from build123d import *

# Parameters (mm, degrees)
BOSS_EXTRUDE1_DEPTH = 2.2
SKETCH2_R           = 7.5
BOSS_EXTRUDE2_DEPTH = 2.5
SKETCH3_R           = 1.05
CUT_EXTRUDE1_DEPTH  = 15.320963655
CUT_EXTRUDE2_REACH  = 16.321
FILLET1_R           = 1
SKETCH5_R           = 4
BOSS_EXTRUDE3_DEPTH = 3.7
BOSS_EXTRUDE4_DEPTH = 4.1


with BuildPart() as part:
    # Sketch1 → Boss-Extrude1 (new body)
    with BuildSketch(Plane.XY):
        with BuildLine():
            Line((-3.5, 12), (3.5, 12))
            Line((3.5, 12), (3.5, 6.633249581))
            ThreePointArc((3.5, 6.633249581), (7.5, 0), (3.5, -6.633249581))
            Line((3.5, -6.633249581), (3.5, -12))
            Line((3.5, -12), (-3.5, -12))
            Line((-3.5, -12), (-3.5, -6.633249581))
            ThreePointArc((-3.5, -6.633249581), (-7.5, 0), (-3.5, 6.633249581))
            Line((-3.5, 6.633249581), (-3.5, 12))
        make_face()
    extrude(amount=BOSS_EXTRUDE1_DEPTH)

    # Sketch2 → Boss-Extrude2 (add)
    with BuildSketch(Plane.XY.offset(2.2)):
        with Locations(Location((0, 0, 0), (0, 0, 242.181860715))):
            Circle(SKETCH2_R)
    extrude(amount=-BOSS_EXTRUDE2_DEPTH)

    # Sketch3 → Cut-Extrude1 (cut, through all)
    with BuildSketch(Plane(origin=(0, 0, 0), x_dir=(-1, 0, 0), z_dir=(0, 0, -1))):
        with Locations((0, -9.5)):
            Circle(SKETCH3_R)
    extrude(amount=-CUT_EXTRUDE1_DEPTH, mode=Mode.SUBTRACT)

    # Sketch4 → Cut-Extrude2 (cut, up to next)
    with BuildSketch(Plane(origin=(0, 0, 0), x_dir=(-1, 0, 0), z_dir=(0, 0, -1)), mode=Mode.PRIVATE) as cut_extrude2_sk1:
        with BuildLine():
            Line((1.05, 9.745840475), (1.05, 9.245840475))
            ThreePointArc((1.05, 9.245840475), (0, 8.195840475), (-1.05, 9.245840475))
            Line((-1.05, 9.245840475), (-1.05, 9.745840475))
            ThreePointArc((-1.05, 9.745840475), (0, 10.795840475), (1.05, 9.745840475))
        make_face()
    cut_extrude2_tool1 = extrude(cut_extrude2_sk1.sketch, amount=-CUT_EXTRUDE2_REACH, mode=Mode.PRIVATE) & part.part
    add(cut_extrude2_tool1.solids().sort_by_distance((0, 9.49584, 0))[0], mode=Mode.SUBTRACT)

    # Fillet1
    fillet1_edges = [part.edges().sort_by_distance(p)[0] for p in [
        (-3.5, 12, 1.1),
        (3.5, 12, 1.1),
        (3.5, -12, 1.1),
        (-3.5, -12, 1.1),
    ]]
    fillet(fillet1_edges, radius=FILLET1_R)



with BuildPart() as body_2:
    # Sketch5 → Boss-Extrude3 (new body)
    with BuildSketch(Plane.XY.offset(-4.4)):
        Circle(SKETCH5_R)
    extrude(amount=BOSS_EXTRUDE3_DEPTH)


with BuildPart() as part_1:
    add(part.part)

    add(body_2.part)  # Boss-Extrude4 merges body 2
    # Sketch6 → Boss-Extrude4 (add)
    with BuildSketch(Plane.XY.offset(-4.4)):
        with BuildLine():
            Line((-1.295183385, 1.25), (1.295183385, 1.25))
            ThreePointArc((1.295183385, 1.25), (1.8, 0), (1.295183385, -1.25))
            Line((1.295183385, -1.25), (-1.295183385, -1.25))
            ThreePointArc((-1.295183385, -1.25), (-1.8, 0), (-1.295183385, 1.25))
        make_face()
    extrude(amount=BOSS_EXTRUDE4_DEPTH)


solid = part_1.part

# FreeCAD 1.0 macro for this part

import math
import FreeCAD as App
import Part
import Sketcher
from FreeCAD import Vector
Q = App.Units.Quantity


def edges_at(feature, points):
    """Names of the edges that pass closest to the given points."""
    edges = feature.Shape.Edges
    near = lambda p: min(range(len(edges)), key=lambda i: edges[i].distToShape(Part.Vertex(*p))[0])
    return sorted({f"Edge{near(p) + 1}" for p in points})

doc = App.newDocument("Part")
body = doc.addObject("PartDesign::Body", "Body")

# Sketch on XY plane
sketch1 = body.newObject("Sketcher::SketchObject", "Sketch")
sketch1.AttachmentSupport = (doc.getObject("XY_Plane"), [""])
sketch1.MapMode = "FlatFace"
sketch1.addGeometry(Part.LineSegment(Vector(4, 12, 0), Vector(-4, 12, 0)), False)
sketch1.addGeometry(Part.LineSegment(Vector(-4, 12, 0), Vector(-4, 7, 0)), False)
sketch1.addGeometry(Part.ArcOfCircle(Part.Circle(Vector(0, 0, 0), Vector(0, 0, 1), 8), math.radians(118), math.radians(242)), False)
sketch1.addGeometry(Part.LineSegment(Vector(-4, -7, 0), Vector(-4, -12, 0)), False)
sketch1.addGeometry(Part.LineSegment(Vector(-4, -12, 0), Vector(4, -12, 0)), False)
sketch1.addGeometry(Part.LineSegment(Vector(4, -12, 0), Vector(4, -7, 0)), False)
sketch1.addGeometry(Part.ArcOfCircle(Part.Circle(Vector(0, 0, 0), Vector(0, 0, 1), 8), math.radians(-62), math.radians(62)), False)
sketch1.addGeometry(Part.LineSegment(Vector(4, 7, 0), Vector(4, 12, 0)), False)
sketch1.addConstraint(Sketcher.Constraint("Coincident", 0, 2, 1, 1))
sketch1.addConstraint(Sketcher.Constraint("Coincident", 1, 2, 2, 1))
sketch1.addConstraint(Sketcher.Constraint("Coincident", 2, 2, 3, 1))
sketch1.addConstraint(Sketcher.Constraint("Coincident", 3, 2, 4, 1))
sketch1.addConstraint(Sketcher.Constraint("Coincident", 4, 2, 5, 1))
sketch1.addConstraint(Sketcher.Constraint("Coincident", 5, 2, 6, 1))
sketch1.addConstraint(Sketcher.Constraint("Coincident", 6, 2, 7, 1))
sketch1.addConstraint(Sketcher.Constraint("Coincident", 7, 2, 0, 1))
sketch1.addConstraint(Sketcher.Constraint("Horizontal", 0))
sketch1.addConstraint(Sketcher.Constraint("Vertical", 1))
sketch1.addConstraint(Sketcher.Constraint("Vertical", 3))
sketch1.addConstraint(Sketcher.Constraint("Horizontal", 4))
sketch1.addConstraint(Sketcher.Constraint("Vertical", 5))
sketch1.addConstraint(Sketcher.Constraint("Vertical", 7))
sketch1.addConstraint(Sketcher.Constraint("Coincident", 2, 3, -1, 1))
sketch1.addConstraint(Sketcher.Constraint("Coincident", 6, 3, -1, 1))
sketch1.addConstraint(Sketcher.Constraint("Equal", 2, 6))
sketch1.addConstraint(Sketcher.Constraint("Symmetric", 0, 2, 4, 2, -1, 1))
sketch1.addConstraint(Sketcher.Constraint("Horizontal", 2, 2, 5, 2))
sketch1.addConstraint(Sketcher.Constraint("Horizontal", 1, 2, 6, 2))
sketch1.addConstraint(Sketcher.Constraint("Radius", 2, Q("7.5 mm")))
sketch1.addConstraint(Sketcher.Constraint("DistanceX", 0, 2, 0, 1, Q("7 mm")))
sketch1.addConstraint(Sketcher.Constraint("DistanceY", -1, 1, 0, 2, Q("12 mm")))
pad1 = body.newObject("PartDesign::Pad", "Pad")
pad1.Profile = sketch1
pad1.Length = 2.2

# Sketch on XY plane
sketch2 = body.newObject("Sketcher::SketchObject", "Sketch001")
sketch2.AttachmentSupport = (doc.getObject("XY_Plane"), [""])
sketch2.MapMode = "FlatFace"
sketch2.AttachmentOffset = App.Placement(Vector(0, 0, 2.2), App.Rotation())
sketch2.addGeometry(Part.Circle(Vector(0, 0, 0), Vector(0, 0, 1), 8), False)
sketch2.addConstraint(Sketcher.Constraint("Coincident", 0, 3, -1, 1))
sketch2.addConstraint(Sketcher.Constraint("Diameter", 0, Q("15 mm")))
pad2 = body.newObject("PartDesign::Pad", "Pad001")
pad2.Profile = sketch2
pad2.Length = 2.5
pad2.Reversed = True

# Sketch on XY plane
sketch3 = body.newObject("Sketcher::SketchObject", "Sketch002")
sketch3.AttachmentSupport = (doc.getObject("XY_Plane"), [""])
sketch3.MapMode = "FlatFace"
sketch3.addGeometry(Part.Circle(Vector(0, -9.5, 0), Vector(0, 0, 1), 1.1), False)
sketch3.addConstraint(Sketcher.Constraint("PointOnObject", 0, 3, -2))
sketch3.addConstraint(Sketcher.Constraint("Diameter", 0, Q("2.1 mm")))
sketch3.addConstraint(Sketcher.Constraint("DistanceY", 0, 3, -1, 1, Q("9.5 mm")))
pocket1 = body.newObject("PartDesign::Pocket", "Pocket")
pocket1.Profile = sketch3
pocket1.Type = "ThroughAll"
pocket1.Reversed = True

# Sketch on XY plane
sketch4 = body.newObject("Sketcher::SketchObject", "Sketch003")
sketch4.AttachmentSupport = (doc.getObject("XY_Plane"), [""])
sketch4.MapMode = "FlatFace"
sketch4.addGeometry(Part.LineSegment(Vector(-1.1, 9.2, 0), Vector(-1.1, 9.7, 0)), False)
sketch4.addGeometry(Part.ArcOfCircle(Part.Circle(Vector(0, 9.7, 0), Vector(0, 0, 1), 1.1), math.radians(0), math.radians(180)), False)
sketch4.addGeometry(Part.LineSegment(Vector(1.1, 9.7, 0), Vector(1.1, 9.2, 0)), False)
sketch4.addGeometry(Part.ArcOfCircle(Part.Circle(Vector(0, 9.2, 0), Vector(0, 0, 1), 1.1), math.radians(180), math.radians(360)), False)
sketch4.addConstraint(Sketcher.Constraint("Tangent", 0, 2, 1, 2))
sketch4.addConstraint(Sketcher.Constraint("Tangent", 1, 1, 2, 1))
sketch4.addConstraint(Sketcher.Constraint("Tangent", 2, 2, 3, 2))
sketch4.addConstraint(Sketcher.Constraint("Tangent", 3, 1, 0, 1))
sketch4.addConstraint(Sketcher.Constraint("Vertical", 0))
sketch4.addConstraint(Sketcher.Constraint("Vertical", 2))
sketch4.addConstraint(Sketcher.Constraint("PointOnObject", 1, 3, -2))
sketch4.addConstraint(Sketcher.Constraint("Radius", 1, Q("1.05 mm")))
sketch4.addConstraint(Sketcher.Constraint("DistanceY", 0, 1, 0, 2, Q("0.5 mm")))
sketch4.addConstraint(Sketcher.Constraint("DistanceY", -1, 1, 1, 3, Q("9.74584 mm")))
pocket2 = body.newObject("PartDesign::Pocket", "Pocket001")
pocket2.Profile = sketch4
pocket2.Type = "UpToFirst"
pocket2.Reversed = True
doc.recompute()

fillet = body.newObject("PartDesign::Fillet", "Fillet")
fillet.Base = (pocket2, edges_at(pocket2, [
    (-3.5, 12, 1.1),
    (3.5, 12, 1.1),
    (3.5, -12, 1.1),
    (-3.5, -12, 1.1),
]))
fillet.Radius = 1
body2 = doc.addObject("PartDesign::Body", "Body001")

# Sketch on XY plane
sketch5 = body2.newObject("Sketcher::SketchObject", "Sketch004")
sketch5.AttachmentSupport = (doc.getObject("XY_Plane001"), [""])
sketch5.MapMode = "FlatFace"
sketch5.AttachmentOffset = App.Placement(Vector(0, 0, -4.4), App.Rotation())
sketch5.addGeometry(Part.Circle(Vector(0, 0, 0), Vector(0, 0, 1), 4), False)
sketch5.addConstraint(Sketcher.Constraint("Coincident", 0, 3, -1, 1))
sketch5.addConstraint(Sketcher.Constraint("Diameter", 0, Q("8 mm")))
pad3 = body2.newObject("PartDesign::Pad", "Pad002")
pad3.Profile = sketch5
pad3.Length = 3.7
body.AllowCompound = True
doc.recompute()

boolean = body.newObject("PartDesign::Boolean", "Boolean")
boolean.Type = "Fuse"
boolean.addObjects([body2])

# Sketch on XY plane
sketch6 = body.newObject("Sketcher::SketchObject", "Sketch005")
sketch6.AttachmentSupport = (doc.getObject("XY_Plane"), [""])
sketch6.MapMode = "FlatFace"
sketch6.AttachmentOffset = App.Placement(Vector(0, 0, -4.4), App.Rotation())
sketch6.addGeometry(Part.LineSegment(Vector(1.3, 1.2, 0), Vector(-1.3, 1.2, 0)), False)
sketch6.addGeometry(Part.ArcOfCircle(Part.Circle(Vector(0, 0, 0), Vector(0, 0, 1), 1.8), math.radians(136), math.radians(224)), False)
sketch6.addGeometry(Part.LineSegment(Vector(-1.3, -1.2, 0), Vector(1.3, -1.2, 0)), False)
sketch6.addGeometry(Part.ArcOfCircle(Part.Circle(Vector(0, 0, 0), Vector(0, 0, 1), 1.8), math.radians(-44), math.radians(44)), False)
sketch6.addConstraint(Sketcher.Constraint("Coincident", 0, 2, 1, 1))
sketch6.addConstraint(Sketcher.Constraint("Coincident", 1, 2, 2, 1))
sketch6.addConstraint(Sketcher.Constraint("Coincident", 2, 2, 3, 1))
sketch6.addConstraint(Sketcher.Constraint("Coincident", 3, 2, 0, 1))
sketch6.addConstraint(Sketcher.Constraint("Horizontal", 0))
sketch6.addConstraint(Sketcher.Constraint("Horizontal", 2))
sketch6.addConstraint(Sketcher.Constraint("Coincident", 1, 3, -1, 1))
sketch6.addConstraint(Sketcher.Constraint("Coincident", 3, 3, -1, 1))
sketch6.addConstraint(Sketcher.Constraint("Equal", 1, 3))
sketch6.addConstraint(Sketcher.Constraint("Vertical", 0, 2, 1, 2))
sketch6.addConstraint(Sketcher.Constraint("Radius", 1, Q("1.8 mm")))
sketch6.addConstraint(Sketcher.Constraint("DistanceY", 1, 2, 0, 2, Q("2.5 mm")))
pad4 = body.newObject("PartDesign::Pad", "Pad003")
pad4.Profile = sketch6
pad4.Length = 4.1

doc.recompute()
